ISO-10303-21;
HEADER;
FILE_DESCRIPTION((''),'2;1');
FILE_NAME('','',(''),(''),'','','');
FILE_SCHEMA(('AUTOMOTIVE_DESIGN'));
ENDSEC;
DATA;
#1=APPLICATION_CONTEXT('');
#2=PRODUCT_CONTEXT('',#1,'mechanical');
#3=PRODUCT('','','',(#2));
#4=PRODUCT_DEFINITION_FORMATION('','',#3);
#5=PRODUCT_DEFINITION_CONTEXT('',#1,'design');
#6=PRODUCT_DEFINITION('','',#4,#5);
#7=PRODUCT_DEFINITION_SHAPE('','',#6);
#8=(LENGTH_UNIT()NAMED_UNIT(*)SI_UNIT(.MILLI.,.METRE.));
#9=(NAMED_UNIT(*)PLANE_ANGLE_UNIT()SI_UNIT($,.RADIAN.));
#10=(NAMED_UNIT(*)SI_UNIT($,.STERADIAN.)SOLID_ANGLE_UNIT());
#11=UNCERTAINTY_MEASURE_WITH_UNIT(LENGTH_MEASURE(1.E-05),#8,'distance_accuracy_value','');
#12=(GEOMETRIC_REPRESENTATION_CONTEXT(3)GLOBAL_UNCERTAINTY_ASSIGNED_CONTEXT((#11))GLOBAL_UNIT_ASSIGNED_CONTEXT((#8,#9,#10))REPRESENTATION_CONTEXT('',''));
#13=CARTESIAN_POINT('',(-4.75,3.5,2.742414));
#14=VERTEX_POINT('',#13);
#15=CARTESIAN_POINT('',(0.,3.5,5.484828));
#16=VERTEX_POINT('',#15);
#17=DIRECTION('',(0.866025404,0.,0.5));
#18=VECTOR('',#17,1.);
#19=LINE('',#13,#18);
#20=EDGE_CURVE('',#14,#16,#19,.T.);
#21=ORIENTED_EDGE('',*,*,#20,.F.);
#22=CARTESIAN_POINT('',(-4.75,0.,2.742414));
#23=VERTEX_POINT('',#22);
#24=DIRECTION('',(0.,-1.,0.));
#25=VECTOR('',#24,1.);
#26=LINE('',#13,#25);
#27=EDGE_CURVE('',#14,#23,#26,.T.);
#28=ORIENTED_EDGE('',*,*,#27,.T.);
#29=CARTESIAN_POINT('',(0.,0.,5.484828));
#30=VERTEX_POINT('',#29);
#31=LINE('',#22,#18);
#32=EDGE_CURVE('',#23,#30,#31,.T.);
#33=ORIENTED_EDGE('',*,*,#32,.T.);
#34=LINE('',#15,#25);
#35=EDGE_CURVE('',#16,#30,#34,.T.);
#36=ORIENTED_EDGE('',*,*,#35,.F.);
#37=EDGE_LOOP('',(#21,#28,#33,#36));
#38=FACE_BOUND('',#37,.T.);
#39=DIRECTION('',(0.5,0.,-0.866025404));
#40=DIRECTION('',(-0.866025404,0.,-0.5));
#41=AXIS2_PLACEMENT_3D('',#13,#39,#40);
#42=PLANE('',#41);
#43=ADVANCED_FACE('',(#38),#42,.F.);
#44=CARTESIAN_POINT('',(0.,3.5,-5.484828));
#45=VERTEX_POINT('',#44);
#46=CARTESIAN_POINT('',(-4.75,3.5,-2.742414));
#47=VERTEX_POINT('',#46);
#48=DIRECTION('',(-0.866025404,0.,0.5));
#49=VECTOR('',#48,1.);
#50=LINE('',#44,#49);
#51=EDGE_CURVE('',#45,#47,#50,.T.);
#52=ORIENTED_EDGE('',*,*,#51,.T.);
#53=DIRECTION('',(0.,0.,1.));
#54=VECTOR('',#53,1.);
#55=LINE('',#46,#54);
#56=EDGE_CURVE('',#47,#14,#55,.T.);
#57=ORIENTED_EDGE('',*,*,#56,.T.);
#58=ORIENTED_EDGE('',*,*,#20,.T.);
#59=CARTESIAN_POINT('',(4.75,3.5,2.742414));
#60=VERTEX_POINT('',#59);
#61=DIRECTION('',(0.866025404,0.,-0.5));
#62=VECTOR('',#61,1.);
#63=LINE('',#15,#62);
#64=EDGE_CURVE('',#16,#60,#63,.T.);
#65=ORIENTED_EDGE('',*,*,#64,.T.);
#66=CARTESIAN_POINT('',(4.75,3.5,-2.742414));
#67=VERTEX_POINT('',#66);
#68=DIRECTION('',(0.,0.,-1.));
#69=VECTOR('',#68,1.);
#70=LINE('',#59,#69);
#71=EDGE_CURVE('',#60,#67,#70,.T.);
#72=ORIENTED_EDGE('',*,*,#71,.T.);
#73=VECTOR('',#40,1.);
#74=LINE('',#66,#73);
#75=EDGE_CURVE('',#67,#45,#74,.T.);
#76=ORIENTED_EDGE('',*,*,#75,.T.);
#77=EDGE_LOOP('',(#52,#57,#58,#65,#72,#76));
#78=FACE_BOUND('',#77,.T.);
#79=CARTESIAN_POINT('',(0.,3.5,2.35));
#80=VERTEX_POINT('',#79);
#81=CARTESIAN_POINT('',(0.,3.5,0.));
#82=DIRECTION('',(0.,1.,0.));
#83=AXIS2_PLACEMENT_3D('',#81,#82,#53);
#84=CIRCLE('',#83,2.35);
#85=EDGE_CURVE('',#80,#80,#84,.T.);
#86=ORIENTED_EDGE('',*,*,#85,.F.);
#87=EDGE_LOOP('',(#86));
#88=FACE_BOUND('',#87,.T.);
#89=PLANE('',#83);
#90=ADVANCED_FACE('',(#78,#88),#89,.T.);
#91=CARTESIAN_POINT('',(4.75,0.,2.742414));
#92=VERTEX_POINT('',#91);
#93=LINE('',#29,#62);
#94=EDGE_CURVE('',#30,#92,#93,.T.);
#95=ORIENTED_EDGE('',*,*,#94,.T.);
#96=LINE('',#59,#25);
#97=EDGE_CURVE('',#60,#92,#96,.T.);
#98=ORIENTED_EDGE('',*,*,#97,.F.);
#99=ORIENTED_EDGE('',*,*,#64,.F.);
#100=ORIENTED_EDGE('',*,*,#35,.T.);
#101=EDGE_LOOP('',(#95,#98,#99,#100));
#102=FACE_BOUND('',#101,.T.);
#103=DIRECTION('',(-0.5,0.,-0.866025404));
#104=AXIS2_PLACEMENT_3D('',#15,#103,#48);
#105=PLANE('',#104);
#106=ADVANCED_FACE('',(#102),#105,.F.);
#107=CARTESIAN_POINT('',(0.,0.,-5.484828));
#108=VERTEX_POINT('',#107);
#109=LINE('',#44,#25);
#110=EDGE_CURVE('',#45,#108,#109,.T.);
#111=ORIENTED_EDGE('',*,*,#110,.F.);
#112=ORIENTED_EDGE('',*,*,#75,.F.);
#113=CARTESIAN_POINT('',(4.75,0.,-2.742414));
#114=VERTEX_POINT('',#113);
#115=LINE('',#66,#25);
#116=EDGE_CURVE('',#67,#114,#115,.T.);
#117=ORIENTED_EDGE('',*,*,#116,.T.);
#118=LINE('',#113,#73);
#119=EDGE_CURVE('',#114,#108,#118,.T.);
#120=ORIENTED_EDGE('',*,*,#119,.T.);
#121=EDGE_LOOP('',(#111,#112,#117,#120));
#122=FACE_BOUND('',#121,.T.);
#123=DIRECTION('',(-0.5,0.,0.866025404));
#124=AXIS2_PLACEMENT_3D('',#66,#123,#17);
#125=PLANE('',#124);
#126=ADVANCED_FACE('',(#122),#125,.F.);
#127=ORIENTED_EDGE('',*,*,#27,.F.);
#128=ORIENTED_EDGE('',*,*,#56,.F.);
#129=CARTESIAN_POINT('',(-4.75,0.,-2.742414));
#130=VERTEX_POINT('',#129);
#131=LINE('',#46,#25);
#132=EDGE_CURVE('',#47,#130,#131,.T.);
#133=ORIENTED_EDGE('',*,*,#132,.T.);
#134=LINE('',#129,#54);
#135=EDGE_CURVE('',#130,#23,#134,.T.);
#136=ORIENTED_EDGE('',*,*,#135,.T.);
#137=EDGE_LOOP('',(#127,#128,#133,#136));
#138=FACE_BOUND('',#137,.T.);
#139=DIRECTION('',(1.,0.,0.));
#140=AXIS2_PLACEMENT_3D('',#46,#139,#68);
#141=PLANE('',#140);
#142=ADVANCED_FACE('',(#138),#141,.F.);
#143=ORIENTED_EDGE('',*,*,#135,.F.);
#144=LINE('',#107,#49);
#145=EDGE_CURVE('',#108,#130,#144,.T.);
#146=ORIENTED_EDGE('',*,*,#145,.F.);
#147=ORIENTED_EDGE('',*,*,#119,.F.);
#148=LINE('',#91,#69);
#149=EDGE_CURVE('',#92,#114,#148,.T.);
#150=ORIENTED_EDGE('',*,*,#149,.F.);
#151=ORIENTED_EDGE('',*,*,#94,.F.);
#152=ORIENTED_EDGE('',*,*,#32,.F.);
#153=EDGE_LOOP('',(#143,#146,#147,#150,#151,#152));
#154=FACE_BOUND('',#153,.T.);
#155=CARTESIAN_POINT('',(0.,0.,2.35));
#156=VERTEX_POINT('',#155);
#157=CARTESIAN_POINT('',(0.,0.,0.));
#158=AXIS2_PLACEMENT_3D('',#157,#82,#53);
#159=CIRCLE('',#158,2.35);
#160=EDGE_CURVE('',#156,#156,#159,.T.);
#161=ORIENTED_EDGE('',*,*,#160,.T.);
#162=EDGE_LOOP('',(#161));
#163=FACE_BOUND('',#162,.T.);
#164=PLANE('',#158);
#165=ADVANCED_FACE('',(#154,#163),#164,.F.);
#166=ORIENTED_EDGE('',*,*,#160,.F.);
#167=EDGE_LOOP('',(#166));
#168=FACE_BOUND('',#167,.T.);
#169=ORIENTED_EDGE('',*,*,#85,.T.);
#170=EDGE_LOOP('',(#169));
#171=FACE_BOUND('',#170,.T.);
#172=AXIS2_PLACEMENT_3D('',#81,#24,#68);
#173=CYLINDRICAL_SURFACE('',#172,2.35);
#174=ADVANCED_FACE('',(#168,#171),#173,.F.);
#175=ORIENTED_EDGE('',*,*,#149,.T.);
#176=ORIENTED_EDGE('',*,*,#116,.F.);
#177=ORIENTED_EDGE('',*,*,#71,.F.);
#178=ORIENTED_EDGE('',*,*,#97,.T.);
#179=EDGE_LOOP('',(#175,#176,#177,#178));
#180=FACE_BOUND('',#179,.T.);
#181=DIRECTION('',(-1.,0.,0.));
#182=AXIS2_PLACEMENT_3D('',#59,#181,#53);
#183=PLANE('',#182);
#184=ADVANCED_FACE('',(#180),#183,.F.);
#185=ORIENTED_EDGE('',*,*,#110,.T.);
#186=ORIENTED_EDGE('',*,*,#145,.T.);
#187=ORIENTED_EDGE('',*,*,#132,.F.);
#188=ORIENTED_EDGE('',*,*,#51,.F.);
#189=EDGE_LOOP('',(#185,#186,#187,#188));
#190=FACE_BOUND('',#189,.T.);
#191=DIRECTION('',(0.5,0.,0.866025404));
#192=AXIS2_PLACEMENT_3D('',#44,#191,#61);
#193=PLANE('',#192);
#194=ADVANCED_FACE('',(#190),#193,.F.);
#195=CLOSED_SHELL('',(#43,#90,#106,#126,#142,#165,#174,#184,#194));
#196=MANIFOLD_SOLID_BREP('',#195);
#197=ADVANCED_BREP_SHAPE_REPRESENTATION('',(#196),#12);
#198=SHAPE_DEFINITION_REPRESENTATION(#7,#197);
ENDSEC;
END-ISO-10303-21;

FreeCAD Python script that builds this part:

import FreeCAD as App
import Part
import Sketcher
Q = App.Units.Quantity


def add_polygon(sketch, points):
    """Adds a closed chain of lines whose ends are joined by coincident constraints."""
    first, n = sketch.GeometryCount, len(points)
    for a, b in zip(points, points[1:] + points[:1]):
        sketch.addGeometry(Part.LineSegment(App.Vector(*a, 0), App.Vector(*b, 0)), False)
    for i in range(n):
        sketch.addConstraint(Sketcher.Constraint("Coincident", first + i, 2, first + (i + 1) % n, 1))

doc = App.newDocument("Part")
body = doc.addObject("PartDesign::Body", "Body")

# Sketch on XZ plane
sketch1 = body.newObject("Sketcher::SketchObject", "Sketch")
sketch1.AttachmentSupport = (doc.getObject("XZ_Plane"), [""])
sketch1.MapMode = "FlatFace"
add_polygon(sketch1, [(0, -5.5), (-4.8, -2.7), (-4.8, 2.7), (0, 5.5), (4.8, 2.7), (4.8, -2.7)])  # lines 0-5
sketch1.addGeometry(Part.Circle(App.Vector(0, 0, 0), App.Vector(0, 0, 1), 2.4), False)  # 6
sketch1.addConstraint([
    Sketcher.Constraint("Vertical", 1),
    Sketcher.Constraint("Vertical", 4),
    Sketcher.Constraint("Coincident", 6, 3, -1, 1),
    Sketcher.Constraint("Symmetric", 0, 2, 3, 2, -1, 1),
    Sketcher.Constraint("Symmetric", 2, 2, 5, 2, -1, 1),
    Sketcher.Constraint("PointOnObject", 2, 2, -2),
    Sketcher.Constraint("Parallel", 2, 5),
    Sketcher.Constraint("Horizontal", 1, 2, 3, 2),
    Sketcher.Constraint("Diameter", 6, 4.7),
    Sketcher.Constraint("Angle", 0, Q("150 deg")),
    Sketcher.Constraint("DistanceX", 1, 2, 3, 2, 9.5),
    Sketcher.Constraint("DistanceY", 1, 1, 1, 2, 5.484828),
])
pad1 = body.newObject("PartDesign::Pad", "Pad")
pad1.Profile = sketch1
pad1.Length = 3.5
pad1.Reversed = True

doc.recompute()
